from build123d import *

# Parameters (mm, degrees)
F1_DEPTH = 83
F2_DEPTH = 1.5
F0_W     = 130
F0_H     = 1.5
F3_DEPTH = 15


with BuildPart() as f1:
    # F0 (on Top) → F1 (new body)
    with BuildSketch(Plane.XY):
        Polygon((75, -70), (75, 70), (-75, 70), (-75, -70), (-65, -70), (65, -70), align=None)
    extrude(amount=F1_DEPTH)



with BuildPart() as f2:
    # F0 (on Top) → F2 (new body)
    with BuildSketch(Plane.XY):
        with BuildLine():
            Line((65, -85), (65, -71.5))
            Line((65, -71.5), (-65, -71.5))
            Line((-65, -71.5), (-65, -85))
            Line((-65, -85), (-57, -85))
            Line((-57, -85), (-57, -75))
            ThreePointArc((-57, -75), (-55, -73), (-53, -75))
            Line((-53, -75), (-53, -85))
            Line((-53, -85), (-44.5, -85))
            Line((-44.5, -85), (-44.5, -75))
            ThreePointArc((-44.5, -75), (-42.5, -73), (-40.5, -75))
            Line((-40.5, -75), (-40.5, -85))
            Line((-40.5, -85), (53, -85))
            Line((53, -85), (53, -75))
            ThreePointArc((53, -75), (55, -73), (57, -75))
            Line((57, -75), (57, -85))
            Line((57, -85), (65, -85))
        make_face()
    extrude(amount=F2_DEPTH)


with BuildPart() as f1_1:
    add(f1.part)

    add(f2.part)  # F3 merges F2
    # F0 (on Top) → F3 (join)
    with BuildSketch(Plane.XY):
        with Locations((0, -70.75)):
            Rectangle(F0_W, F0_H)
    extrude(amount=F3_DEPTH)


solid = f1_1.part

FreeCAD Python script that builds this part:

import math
import FreeCAD as App
import Part
import Sketcher

V = App.Vector
Q = App.Units.Quantity


def add_polygon(sketch, points):
    """Adds a closed chain of lines whose ends are joined by coincident constraints."""
    first, n = sketch.GeometryCount, len(points)
    for a, b in zip(points, points[1:] + points[:1]):
        sketch.addGeometry(Part.LineSegment(App.Vector(*a, 0), App.Vector(*b, 0)), False)
    for i in range(n):
        sketch.addConstraint(Sketcher.Constraint("Coincident", first + i, 2, first + (i + 1) % n, 1))

doc = App.newDocument("Part")
body = doc.addObject("PartDesign::Body", "Body")

sketch1 = doc.addObject("Sketcher::SketchObject", "Sketch")
body.addObject(sketch1)
sketch1.AttachmentSupport = (doc.XY_Plane, [""])
sketch1.MapMode = "FlatFace"
add_polygon(sketch1, [(75, -70), (75, 70), (-75, 70), (-75, -70)])
sketch1.addConstraint([
    Sketcher.Constraint("Vertical", 0),
    Sketcher.Constraint("Horizontal", 1),
    Sketcher.Constraint("Vertical", 2),
    Sketcher.Constraint("Horizontal", 3),
    Sketcher.Constraint("Symmetric", 0, 2, 2, 2, -1, 1),
    Sketcher.Constraint("DistanceX", 1, 2, 1, 1, Q("150 mm")),
    Sketcher.Constraint("DistanceY", 0, 1, 0, 2, Q("140 mm")),
])
pad1 = doc.addObject("PartDesign::Pad", "Pad")
body.addObject(pad1)
pad1.Profile = sketch1
pad1.Length = 83
body2 = doc.addObject("PartDesign::Body", "Body001")

sketch2 = doc.addObject("Sketcher::SketchObject", "Sketch001")
body2.addObject(sketch2)
sketch2.AttachmentSupport = (doc.getObject("XY_Plane001"), [""])
sketch2.MapMode = "FlatFace"
sketch2.addGeometry([
    Part.LineSegment(V(65, -85, 0), V(65, -71.5, 0)),
    Part.LineSegment(V(65, -71.5, 0), V(-65, -71.5, 0)),
    Part.LineSegment(V(-65, -71.5, 0), V(-65, -85, 0)),
    Part.LineSegment(V(-65, -85, 0), V(-57, -85, 0)),
    Part.LineSegment(V(-57, -85, 0), V(-57, -75, 0)),
    Part.ArcOfCircle(Part.Circle(V(-55, -75, 0), V(0, 0, 1), 2), math.radians(0), math.radians(180)),
    Part.LineSegment(V(-53, -75, 0), V(-53, -85, 0)),
    Part.LineSegment(V(-53, -85, 0), V(-44.5, -85, 0)),
    Part.LineSegment(V(-44.5, -85, 0), V(-44.5, -75, 0)),
    Part.ArcOfCircle(Part.Circle(V(-42.5, -75, 0), V(0, 0, 1), 2), math.radians(0), math.radians(180)),
    Part.LineSegment(V(-40.5, -75, 0), V(-40.5, -85, 0)),
    Part.LineSegment(V(-40.5, -85, 0), V(53, -85, 0)),
    Part.LineSegment(V(53, -85, 0), V(53, -75, 0)),
    Part.ArcOfCircle(Part.Circle(V(55, -75, 0), V(0, 0, 1), 2), math.radians(0), math.radians(180)),
    Part.LineSegment(V(57, -75, 0), V(57, -85, 0)),
    Part.LineSegment(V(57, -85, 0), V(65, -85, 0)),
], False)
sketch2.addConstraint([
    Sketcher.Constraint("Coincident", 0, 2, 1, 1),
    Sketcher.Constraint("Coincident", 1, 2, 2, 1),
    Sketcher.Constraint("Coincident", 2, 2, 3, 1),
    Sketcher.Constraint("Coincident", 3, 2, 4, 1),
    Sketcher.Constraint("Tangent", 4, 2, 5, 2),
    Sketcher.Constraint("Tangent", 5, 1, 6, 1),
    Sketcher.Constraint("Coincident", 6, 2, 7, 1),
    Sketcher.Constraint("Coincident", 7, 2, 8, 1),
    Sketcher.Constraint("Tangent", 8, 2, 9, 2),
    Sketcher.Constraint("Tangent", 9, 1, 10, 1),
    Sketcher.Constraint("Coincident", 10, 2, 11, 1),
    Sketcher.Constraint("Coincident", 11, 2, 12, 1),
    Sketcher.Constraint("Tangent", 12, 2, 13, 2),
    Sketcher.Constraint("Tangent", 13, 1, 14, 1),
    Sketcher.Constraint("Coincident", 14, 2, 15, 1),
    Sketcher.Constraint("Coincident", 15, 2, 0, 1),
    Sketcher.Constraint("Vertical", 0),
    Sketcher.Constraint("Horizontal", 1),
    Sketcher.Constraint("Vertical", 2),
    Sketcher.Constraint("Horizontal", 3),
    Sketcher.Constraint("Vertical", 4),
    Sketcher.Constraint("Vertical", 6),
    Sketcher.Constraint("Horizontal", 7),
    Sketcher.Constraint("Vertical", 8),
    Sketcher.Constraint("Vertical", 10),
    Sketcher.Constraint("Horizontal", 11),
    Sketcher.Constraint("Vertical", 12),
    Sketcher.Constraint("Vertical", 14),
    Sketcher.Constraint("Horizontal", 15),
    Sketcher.Constraint("Equal", 5, 9),
    Sketcher.Constraint("Equal", 9, 13),
    Sketcher.Constraint("Symmetric", 5, 3, 13, 3, -2),
    Sketcher.Constraint("Symmetric", 2, 2, 15, 2, -2),
    Sketcher.Constraint("Horizontal", 5, 3, 9, 3),
    Sketcher.Constraint("Horizontal", 3, 2, 6, 2),
    Sketcher.Constraint("Horizontal", 7, 2, 10, 2),
    Sketcher.Constraint("Radius", 5, Q("2 mm")),
    Sketcher.Constraint("DistanceX", 1, 2, 1, 1, Q("130 mm")),
    Sketcher.Constraint("DistanceX", 3, 1, 3, 2, Q("8 mm")),
    Sketcher.Constraint("DistanceY", 4, 1, 4, 2, Q("10 mm")),
    Sketcher.Constraint("DistanceX", 7, 1, 7, 2, Q("8.5 mm")),
    Sketcher.Constraint("DistanceY", 0, 1, 0, 2, Q("13.5 mm")),
    Sketcher.Constraint("DistanceY", 5, 3, -1, 1, Q("75 mm")),
])
pad2 = doc.addObject("PartDesign::Pad", "Pad001")
body2.addObject(pad2)
pad2.Profile = sketch2
pad2.Length = 1.5
body.AllowCompound = True
doc.recompute()

boolean = doc.addObject("PartDesign::Boolean", "Boolean")
body.addObject(boolean)
boolean.Type = "Fuse"
boolean.addObjects([body2])

sketch3 = doc.addObject("Sketcher::SketchObject", "Sketch002")
body.addObject(sketch3)
sketch3.AttachmentSupport = (doc.XY_Plane, [""])
sketch3.MapMode = "FlatFace"
add_polygon(sketch3, [(-65, -70), (-65, -71.5), (65, -71.5), (65, -70)])
sketch3.addConstraint([
    Sketcher.Constraint("Vertical", 0),
    Sketcher.Constraint("Horizontal", 1),
    Sketcher.Constraint("Vertical", 2),
    Sketcher.Constraint("Horizontal", 3),
    Sketcher.Constraint("DistanceX", 1, 1, 1, 2, Q("130 mm")),
    Sketcher.Constraint("DistanceY", 0, 2, 0, 1, Q("1.5 mm")),
    Sketcher.Constraint("DistanceX", 0, 2, -1, 1, Q("65 mm")),
    Sketcher.Constraint("DistanceY", 2, 2, -1, 1, Q("70 mm")),
])
pad3 = doc.addObject("PartDesign::Pad", "Pad002")
body.addObject(pad3)
pad3.Profile = sketch3
pad3.Length = 15

doc.recompute()
